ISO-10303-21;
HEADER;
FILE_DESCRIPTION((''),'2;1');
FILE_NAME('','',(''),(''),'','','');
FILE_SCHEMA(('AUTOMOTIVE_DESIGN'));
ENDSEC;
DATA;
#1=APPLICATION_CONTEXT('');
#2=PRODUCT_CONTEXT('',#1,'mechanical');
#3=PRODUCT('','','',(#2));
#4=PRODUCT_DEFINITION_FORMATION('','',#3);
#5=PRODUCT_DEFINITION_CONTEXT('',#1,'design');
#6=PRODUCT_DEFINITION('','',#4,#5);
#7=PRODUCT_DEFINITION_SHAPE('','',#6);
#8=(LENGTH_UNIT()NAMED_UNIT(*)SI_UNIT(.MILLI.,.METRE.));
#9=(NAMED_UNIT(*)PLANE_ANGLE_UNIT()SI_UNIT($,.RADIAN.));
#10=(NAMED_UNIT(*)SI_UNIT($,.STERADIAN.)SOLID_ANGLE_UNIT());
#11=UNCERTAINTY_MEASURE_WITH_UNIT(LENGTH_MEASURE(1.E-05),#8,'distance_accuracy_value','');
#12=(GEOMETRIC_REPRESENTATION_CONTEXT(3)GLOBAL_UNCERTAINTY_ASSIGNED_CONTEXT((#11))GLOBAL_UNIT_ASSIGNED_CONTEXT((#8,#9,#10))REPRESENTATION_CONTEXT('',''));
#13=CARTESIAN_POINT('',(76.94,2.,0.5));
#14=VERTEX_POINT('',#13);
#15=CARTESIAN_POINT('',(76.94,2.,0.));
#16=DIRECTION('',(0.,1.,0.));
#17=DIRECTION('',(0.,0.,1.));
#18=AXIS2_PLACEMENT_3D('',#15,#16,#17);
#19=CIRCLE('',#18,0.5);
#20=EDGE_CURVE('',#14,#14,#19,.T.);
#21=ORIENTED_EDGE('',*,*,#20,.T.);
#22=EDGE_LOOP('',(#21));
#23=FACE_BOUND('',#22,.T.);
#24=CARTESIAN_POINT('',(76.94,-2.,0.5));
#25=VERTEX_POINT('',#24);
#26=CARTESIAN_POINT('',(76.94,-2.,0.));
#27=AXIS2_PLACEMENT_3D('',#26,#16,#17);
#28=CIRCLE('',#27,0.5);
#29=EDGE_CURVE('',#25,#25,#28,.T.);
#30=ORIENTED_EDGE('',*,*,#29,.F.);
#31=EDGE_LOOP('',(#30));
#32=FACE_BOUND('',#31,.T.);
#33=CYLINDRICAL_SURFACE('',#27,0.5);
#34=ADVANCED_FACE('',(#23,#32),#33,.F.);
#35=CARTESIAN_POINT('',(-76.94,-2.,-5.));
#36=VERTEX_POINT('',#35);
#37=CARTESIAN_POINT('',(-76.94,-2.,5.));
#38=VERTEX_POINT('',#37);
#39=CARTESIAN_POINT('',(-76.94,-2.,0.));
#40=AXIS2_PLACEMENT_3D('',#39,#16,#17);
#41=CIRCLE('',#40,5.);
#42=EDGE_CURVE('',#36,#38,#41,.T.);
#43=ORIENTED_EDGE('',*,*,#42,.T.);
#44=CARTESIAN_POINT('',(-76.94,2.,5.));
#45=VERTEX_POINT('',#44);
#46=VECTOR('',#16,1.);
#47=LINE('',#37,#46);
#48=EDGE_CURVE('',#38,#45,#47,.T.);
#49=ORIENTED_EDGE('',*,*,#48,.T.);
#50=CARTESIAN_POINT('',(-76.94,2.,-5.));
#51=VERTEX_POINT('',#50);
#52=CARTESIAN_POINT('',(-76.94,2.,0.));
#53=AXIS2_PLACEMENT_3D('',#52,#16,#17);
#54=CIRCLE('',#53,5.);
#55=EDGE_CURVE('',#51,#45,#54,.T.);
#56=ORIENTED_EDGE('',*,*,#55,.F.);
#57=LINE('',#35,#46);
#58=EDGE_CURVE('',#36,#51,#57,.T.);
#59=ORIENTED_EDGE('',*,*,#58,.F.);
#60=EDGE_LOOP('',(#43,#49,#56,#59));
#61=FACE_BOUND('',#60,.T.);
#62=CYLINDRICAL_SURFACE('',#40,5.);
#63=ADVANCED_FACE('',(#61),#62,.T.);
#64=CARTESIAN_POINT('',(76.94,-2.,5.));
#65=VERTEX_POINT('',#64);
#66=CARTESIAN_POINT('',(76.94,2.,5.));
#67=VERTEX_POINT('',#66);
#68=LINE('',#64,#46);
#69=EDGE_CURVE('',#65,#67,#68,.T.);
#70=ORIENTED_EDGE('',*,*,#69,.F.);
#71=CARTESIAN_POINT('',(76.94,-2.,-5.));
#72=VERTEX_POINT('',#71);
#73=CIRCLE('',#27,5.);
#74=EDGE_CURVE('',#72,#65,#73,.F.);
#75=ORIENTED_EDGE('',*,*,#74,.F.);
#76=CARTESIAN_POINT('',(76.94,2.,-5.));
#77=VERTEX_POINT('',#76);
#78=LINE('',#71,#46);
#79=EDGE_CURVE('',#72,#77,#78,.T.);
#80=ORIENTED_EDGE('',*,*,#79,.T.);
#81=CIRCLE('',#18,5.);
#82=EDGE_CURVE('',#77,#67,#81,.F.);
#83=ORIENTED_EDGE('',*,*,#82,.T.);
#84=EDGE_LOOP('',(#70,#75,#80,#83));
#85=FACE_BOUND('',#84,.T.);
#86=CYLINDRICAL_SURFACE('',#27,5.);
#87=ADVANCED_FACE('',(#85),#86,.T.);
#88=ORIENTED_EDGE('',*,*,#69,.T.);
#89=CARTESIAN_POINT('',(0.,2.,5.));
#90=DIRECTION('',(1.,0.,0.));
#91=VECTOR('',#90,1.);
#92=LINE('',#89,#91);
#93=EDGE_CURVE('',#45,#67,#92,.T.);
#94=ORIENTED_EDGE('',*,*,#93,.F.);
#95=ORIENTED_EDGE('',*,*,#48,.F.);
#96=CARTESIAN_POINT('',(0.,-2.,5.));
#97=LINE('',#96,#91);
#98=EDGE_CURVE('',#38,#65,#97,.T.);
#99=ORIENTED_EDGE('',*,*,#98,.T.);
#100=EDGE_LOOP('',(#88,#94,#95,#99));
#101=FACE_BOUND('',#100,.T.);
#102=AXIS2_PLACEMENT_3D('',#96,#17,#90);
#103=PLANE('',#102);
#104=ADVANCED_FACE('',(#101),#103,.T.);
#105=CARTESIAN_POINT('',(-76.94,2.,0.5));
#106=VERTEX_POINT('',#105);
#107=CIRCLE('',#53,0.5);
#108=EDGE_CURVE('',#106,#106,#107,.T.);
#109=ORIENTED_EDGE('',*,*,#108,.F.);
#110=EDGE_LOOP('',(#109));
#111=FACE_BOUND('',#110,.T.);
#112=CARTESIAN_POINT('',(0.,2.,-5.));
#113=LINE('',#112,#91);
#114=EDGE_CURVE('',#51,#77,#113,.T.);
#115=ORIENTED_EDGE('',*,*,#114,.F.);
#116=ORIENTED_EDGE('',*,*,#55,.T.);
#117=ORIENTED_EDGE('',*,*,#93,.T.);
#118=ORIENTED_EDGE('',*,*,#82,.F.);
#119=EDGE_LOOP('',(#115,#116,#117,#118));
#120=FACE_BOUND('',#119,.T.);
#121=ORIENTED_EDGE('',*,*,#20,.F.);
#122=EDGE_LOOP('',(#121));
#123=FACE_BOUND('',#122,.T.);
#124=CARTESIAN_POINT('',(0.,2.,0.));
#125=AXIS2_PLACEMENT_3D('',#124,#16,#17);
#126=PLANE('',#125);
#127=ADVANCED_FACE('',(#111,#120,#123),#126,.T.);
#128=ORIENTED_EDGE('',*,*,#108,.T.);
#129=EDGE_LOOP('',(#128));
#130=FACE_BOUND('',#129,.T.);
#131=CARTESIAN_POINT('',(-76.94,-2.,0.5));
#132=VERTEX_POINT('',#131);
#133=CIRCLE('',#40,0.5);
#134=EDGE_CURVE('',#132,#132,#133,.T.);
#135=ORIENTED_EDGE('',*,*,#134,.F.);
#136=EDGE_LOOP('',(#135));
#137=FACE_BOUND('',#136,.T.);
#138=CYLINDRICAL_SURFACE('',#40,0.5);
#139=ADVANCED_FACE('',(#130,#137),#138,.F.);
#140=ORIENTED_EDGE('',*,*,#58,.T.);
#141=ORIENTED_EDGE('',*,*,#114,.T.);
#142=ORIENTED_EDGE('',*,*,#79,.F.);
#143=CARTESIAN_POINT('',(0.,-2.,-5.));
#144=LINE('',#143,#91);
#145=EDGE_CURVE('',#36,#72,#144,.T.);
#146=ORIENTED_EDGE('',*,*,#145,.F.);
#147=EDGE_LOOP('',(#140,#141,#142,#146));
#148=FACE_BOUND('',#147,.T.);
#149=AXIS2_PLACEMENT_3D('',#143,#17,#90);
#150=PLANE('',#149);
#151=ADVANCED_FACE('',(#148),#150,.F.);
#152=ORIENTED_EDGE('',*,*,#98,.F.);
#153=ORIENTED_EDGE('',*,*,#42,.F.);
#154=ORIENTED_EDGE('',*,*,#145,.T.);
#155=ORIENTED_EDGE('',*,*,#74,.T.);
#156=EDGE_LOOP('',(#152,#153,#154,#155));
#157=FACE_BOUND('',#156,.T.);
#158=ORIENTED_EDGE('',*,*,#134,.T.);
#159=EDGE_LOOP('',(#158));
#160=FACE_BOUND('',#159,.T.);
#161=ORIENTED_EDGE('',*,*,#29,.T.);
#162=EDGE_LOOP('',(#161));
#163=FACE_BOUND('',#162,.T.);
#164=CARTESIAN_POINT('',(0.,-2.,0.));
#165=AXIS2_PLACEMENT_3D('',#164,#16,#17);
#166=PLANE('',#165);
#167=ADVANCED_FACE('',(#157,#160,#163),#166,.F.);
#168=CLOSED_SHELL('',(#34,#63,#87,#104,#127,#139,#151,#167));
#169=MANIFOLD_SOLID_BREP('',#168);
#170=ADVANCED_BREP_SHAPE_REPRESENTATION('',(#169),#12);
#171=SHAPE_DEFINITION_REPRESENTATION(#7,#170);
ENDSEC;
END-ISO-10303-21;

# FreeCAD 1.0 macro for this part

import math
import FreeCAD as App
import Part
import Sketcher
from FreeCAD import Vector

doc = App.newDocument("Part")
params = doc.addObject("Spreadsheet::Sheet", "Params")
for row, (alias, value) in enumerate([
    ("sketch1_diameter", "1 mm"),
    ("sketch1_radius", "5 mm"),
    ("sketch1_width", "153.88 mm"),
    ("pad1_length", "2 mm"),
    ("pad1_length2", "2 mm"),
], start=1):
    params.set(f"A{row}", alias)
    params.set(f"B{row}", "=" + value)
    params.setAlias(f"B{row}", alias)

body = doc.addObject("PartDesign::Body", "Body")

sketch1 = body.newObject("Sketcher::SketchObject", "Sketch")
sketch1.AttachmentSupport = (doc.getObject("XZ_Plane"), [""])
sketch1.MapMode = "FlatFace"
sketch1.addGeometry([
    Part.LineSegment(Vector(-76.9, 5, 0), Vector(76.9, 5, 0)),
    Part.ArcOfCircle(Part.Circle(Vector(76.9, 0, 0), Vector(0, 0, 1), 5), math.radians(-90), math.radians(90)),
    Part.LineSegment(Vector(76.9, -5, 0), Vector(-76.9, -5, 0)),
    Part.ArcOfCircle(Part.Circle(Vector(-76.9, 0, 0), Vector(0, 0, 1), 5), math.radians(90), math.radians(270)),
    Part.Circle(Vector(-76.9, 0, 0), Vector(0, 0, 1), 0.5),
    Part.Circle(Vector(76.9, 0, 0), Vector(0, 0, 1), 0.5),
], False)
sketch1.addConstraint([
    Sketcher.Constraint("Tangent", 0, 2, 1, 2),
    Sketcher.Constraint("Tangent", 1, 1, 2, 1),
    Sketcher.Constraint("Tangent", 2, 2, 3, 2),
    Sketcher.Constraint("Tangent", 3, 1, 0, 1),
    Sketcher.Constraint("Horizontal", 0),
    Sketcher.Constraint("Horizontal", 2),
    Sketcher.Constraint("Coincident", 4, 3, 3, 3),
    Sketcher.Constraint("Coincident", 5, 3, 1, 3),
    Sketcher.Constraint("Equal", 4, 5),
    Sketcher.Constraint("Symmetric", 1, 3, 3, 3, -1, 1),
    Sketcher.Constraint("Diameter", 4, 1.0),
    Sketcher.Constraint("Radius", 1, 5.0),
    Sketcher.Constraint("DistanceX", 0, 1, 0, 2, 153.88),
])
sketch1.setExpression("Constraints[10]", "Params.sketch1_diameter")
sketch1.setExpression("Constraints[11]", "Params.sketch1_radius")
sketch1.setExpression("Constraints[12]", "Params.sketch1_width")
pad1 = body.newObject("PartDesign::Pad", "Pad")
pad1.Profile = sketch1
pad1.Type = "TwoLengths"
pad1.setExpression("Length", "Params.pad1_length")
pad1.setExpression("Length2", "Params.pad1_length2")
pad1.Reversed = True

doc.recompute()
